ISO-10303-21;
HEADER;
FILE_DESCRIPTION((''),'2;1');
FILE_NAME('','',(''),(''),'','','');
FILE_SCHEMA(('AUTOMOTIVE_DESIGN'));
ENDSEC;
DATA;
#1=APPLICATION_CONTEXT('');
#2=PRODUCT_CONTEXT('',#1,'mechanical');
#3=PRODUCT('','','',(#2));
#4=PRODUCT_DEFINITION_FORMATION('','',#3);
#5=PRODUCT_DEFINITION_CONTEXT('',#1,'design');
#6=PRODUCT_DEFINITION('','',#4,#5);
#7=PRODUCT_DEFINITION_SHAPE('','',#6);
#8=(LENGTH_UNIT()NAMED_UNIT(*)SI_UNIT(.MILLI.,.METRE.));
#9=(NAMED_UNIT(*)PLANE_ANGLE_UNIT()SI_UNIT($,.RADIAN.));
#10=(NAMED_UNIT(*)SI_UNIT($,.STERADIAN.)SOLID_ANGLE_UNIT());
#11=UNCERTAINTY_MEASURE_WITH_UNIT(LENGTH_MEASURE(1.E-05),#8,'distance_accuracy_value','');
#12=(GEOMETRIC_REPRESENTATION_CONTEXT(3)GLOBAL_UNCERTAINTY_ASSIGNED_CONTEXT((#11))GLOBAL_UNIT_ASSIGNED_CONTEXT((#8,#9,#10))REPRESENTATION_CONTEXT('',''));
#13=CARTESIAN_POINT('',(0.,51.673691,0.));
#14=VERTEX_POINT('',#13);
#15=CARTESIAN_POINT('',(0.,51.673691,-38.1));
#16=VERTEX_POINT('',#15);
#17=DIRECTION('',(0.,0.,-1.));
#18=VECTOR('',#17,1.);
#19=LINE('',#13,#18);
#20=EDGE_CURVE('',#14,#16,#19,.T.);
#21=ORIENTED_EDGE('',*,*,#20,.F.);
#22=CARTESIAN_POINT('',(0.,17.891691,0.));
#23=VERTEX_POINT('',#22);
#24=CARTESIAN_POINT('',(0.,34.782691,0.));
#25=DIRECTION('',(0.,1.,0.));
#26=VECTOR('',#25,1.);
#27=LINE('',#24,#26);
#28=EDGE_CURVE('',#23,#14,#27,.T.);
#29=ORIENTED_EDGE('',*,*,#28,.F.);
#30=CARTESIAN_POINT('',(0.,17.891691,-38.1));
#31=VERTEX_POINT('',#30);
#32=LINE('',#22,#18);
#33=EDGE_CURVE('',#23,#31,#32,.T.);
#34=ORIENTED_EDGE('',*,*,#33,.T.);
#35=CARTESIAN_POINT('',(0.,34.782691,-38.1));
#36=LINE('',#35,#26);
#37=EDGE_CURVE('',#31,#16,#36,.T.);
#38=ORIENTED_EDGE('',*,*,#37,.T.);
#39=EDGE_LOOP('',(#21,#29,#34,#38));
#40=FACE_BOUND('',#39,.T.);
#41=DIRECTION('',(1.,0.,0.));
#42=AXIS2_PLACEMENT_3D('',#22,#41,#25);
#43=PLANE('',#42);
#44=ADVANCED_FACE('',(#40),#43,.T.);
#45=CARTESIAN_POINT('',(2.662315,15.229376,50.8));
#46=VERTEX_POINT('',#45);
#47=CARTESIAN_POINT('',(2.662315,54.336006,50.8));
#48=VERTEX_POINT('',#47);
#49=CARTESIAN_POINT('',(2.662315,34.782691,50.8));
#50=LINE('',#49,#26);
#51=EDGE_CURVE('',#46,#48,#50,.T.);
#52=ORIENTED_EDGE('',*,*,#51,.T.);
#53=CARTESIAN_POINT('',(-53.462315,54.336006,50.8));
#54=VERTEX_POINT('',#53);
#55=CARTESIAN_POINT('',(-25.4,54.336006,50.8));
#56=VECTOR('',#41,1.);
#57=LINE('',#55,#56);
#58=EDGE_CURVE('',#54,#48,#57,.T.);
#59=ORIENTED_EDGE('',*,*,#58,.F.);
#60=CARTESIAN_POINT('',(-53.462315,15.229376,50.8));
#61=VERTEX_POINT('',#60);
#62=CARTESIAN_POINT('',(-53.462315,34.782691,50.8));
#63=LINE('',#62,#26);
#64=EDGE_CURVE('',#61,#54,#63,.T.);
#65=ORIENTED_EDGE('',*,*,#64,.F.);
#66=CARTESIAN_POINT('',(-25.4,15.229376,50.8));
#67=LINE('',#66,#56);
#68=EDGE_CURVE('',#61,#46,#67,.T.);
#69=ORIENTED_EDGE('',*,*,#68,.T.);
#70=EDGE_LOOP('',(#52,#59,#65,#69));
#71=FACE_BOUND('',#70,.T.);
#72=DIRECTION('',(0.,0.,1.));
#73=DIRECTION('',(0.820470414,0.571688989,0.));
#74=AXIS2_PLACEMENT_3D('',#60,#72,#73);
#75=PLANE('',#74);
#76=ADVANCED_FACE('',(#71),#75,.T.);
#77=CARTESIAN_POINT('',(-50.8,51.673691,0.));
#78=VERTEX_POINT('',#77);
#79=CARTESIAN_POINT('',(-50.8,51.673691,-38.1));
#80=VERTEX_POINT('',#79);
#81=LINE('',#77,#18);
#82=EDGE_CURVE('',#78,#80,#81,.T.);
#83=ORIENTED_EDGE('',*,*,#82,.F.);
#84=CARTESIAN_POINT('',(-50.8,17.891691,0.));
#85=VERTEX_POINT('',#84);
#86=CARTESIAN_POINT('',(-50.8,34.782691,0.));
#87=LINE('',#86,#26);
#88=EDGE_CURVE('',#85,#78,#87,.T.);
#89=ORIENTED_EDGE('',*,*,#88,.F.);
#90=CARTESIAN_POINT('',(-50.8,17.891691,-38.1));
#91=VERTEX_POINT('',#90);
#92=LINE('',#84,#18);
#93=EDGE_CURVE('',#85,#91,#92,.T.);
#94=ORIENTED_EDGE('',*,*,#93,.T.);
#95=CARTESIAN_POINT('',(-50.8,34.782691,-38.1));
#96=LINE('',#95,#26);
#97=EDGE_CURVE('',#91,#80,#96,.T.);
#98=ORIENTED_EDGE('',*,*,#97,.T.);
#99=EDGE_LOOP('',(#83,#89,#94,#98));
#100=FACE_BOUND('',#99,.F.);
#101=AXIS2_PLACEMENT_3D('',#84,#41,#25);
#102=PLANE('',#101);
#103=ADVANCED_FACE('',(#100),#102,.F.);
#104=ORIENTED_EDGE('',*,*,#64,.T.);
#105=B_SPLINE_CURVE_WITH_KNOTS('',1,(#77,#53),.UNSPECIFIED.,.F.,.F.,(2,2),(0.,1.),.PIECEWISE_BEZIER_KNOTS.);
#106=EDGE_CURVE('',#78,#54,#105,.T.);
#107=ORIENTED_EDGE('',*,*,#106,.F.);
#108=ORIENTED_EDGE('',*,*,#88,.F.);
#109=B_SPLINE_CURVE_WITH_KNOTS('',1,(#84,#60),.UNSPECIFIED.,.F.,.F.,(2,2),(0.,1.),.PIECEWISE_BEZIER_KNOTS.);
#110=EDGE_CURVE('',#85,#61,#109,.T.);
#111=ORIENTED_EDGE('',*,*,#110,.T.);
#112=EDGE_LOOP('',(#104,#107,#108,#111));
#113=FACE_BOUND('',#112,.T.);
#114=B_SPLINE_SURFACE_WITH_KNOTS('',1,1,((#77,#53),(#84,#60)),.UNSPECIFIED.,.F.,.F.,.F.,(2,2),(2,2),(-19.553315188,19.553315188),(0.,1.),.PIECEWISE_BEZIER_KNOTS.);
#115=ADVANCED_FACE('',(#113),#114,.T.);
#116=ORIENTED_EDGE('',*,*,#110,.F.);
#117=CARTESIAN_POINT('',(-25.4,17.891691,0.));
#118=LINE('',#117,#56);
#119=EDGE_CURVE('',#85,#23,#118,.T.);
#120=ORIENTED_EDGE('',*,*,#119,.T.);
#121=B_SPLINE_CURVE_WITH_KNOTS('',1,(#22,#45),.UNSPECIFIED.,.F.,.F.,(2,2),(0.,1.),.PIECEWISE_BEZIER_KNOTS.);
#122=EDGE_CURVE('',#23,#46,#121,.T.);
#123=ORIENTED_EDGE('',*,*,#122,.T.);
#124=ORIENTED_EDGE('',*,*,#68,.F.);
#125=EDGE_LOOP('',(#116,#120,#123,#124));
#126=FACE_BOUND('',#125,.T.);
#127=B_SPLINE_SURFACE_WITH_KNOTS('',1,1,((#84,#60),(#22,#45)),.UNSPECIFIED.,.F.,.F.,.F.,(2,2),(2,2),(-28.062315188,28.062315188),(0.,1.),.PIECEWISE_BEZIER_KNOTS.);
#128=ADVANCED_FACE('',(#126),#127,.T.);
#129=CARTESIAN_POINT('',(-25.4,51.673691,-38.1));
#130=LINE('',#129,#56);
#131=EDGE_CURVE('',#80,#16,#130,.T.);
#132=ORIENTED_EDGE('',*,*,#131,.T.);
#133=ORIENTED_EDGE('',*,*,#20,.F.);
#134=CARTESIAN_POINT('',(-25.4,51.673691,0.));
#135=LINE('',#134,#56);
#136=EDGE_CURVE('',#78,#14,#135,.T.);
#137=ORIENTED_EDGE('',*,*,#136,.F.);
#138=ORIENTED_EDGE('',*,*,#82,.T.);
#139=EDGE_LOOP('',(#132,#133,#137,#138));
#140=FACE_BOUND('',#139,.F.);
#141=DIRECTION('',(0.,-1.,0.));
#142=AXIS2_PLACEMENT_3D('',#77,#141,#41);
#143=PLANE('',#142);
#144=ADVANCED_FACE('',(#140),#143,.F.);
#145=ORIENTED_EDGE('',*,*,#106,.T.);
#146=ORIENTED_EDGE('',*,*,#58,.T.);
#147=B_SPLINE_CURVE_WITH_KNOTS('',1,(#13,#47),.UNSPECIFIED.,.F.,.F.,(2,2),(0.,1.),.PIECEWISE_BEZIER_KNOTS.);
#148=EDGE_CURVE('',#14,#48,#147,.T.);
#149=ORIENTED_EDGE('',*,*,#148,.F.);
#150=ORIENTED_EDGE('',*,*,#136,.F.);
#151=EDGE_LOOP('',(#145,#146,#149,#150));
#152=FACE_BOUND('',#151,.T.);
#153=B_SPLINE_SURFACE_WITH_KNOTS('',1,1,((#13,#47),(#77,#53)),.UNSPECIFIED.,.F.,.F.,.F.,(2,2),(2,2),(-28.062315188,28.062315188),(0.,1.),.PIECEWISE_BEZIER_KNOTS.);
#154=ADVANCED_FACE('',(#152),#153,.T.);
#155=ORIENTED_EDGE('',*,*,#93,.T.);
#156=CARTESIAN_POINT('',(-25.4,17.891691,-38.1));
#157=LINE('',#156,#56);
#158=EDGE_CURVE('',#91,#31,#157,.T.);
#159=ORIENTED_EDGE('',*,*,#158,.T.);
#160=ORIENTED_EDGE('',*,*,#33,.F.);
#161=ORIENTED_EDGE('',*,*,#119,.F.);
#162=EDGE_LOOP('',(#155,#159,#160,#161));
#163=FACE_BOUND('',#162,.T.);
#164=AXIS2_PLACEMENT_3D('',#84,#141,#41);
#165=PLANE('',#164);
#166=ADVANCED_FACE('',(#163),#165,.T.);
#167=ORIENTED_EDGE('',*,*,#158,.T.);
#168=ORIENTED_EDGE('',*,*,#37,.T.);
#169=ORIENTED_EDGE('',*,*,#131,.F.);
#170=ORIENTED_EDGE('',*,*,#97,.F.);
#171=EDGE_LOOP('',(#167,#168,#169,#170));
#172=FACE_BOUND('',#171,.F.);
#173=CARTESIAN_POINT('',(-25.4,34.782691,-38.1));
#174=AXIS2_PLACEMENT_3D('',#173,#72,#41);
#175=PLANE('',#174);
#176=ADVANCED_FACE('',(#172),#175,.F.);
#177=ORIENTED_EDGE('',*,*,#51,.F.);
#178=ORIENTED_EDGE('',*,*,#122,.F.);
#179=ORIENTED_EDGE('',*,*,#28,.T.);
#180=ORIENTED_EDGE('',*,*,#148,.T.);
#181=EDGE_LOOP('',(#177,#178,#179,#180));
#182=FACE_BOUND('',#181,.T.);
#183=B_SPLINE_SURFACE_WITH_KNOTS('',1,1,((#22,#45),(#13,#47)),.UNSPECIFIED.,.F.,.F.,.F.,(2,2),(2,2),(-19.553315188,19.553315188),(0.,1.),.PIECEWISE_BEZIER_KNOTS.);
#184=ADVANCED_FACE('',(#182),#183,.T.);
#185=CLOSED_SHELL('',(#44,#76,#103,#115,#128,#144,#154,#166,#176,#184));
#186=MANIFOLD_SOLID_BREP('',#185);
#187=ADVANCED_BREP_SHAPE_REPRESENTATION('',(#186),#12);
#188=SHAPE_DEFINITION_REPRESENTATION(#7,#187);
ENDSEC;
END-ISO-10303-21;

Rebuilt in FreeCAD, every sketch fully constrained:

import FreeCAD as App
import Part
import Sketcher
Q = App.Units.Quantity


def add_polygon(sketch, points):
    """Adds a closed chain of lines whose ends are joined by coincident constraints."""
    first, n = sketch.GeometryCount, len(points)
    for a, b in zip(points, points[1:] + points[:1]):
        sketch.addGeometry(Part.LineSegment(App.Vector(*a, 0), App.Vector(*b, 0)), False)
    for i in range(n):
        sketch.addConstraint(Sketcher.Constraint("Coincident", first + i, 2, first + (i + 1) % n, 1))

doc = App.newDocument("Part")
params = doc.addObject("Spreadsheet::Sheet", "Params")
for row, (alias, value) in enumerate([
    ("sketch1_width", "2 in"),
    ("sketch1_height", "1.33 in"),
    ("pad1_length", "2 in"),
    ("pad1_taper", "3 deg"),
    ("pad2_length", "1.5 in"),
], start=1):
    params.set(f"A{row}", alias)
    params.set(f"B{row}", "=" + value)
    params.setAlias(f"B{row}", alias)

body = doc.addObject("PartDesign::Body", "Body")

sketch1 = body.newObject("Sketcher::SketchObject", "Sketch")
sketch1.AttachmentSupport = (doc.getObject("XY_Plane"), [""])
sketch1.MapMode = "FlatFace"
add_polygon(sketch1, [(-51, 52), (-51, 18), (0, 18), (0, 52)])
sketch1.addConstraint([
    Sketcher.Constraint("Vertical", 0),
    Sketcher.Constraint("Horizontal", 1),
    Sketcher.Constraint("Vertical", 2),
    Sketcher.Constraint("Horizontal", 3),
    Sketcher.Constraint("PointOnObject", 1, 2, -2),
    Sketcher.Constraint("DistanceX", 1, 1, 1, 2, Q("2 in")),
    Sketcher.Constraint("DistanceY", 0, 2, 0, 1, Q("1.33 in")),
    Sketcher.Constraint("DistanceY", -1, 1, 0, 2, Q("17.891691 mm")),
])
sketch1.setExpression("Constraints[9]", "Params.sketch1_width")
sketch1.setExpression("Constraints[10]", "Params.sketch1_height")
pad1 = body.newObject("PartDesign::Pad", "Pad")
pad1.Profile = sketch1
pad1.setExpression("Length", "Params.pad1_length")
pad1.setExpression("TaperAngle", "Params.pad1_taper")
pad2 = body.newObject("PartDesign::Pad", "Pad001")
pad2.Profile = sketch1
pad2.setExpression("Length", "Params.pad2_length")
pad2.Reversed = True

doc.recompute()
